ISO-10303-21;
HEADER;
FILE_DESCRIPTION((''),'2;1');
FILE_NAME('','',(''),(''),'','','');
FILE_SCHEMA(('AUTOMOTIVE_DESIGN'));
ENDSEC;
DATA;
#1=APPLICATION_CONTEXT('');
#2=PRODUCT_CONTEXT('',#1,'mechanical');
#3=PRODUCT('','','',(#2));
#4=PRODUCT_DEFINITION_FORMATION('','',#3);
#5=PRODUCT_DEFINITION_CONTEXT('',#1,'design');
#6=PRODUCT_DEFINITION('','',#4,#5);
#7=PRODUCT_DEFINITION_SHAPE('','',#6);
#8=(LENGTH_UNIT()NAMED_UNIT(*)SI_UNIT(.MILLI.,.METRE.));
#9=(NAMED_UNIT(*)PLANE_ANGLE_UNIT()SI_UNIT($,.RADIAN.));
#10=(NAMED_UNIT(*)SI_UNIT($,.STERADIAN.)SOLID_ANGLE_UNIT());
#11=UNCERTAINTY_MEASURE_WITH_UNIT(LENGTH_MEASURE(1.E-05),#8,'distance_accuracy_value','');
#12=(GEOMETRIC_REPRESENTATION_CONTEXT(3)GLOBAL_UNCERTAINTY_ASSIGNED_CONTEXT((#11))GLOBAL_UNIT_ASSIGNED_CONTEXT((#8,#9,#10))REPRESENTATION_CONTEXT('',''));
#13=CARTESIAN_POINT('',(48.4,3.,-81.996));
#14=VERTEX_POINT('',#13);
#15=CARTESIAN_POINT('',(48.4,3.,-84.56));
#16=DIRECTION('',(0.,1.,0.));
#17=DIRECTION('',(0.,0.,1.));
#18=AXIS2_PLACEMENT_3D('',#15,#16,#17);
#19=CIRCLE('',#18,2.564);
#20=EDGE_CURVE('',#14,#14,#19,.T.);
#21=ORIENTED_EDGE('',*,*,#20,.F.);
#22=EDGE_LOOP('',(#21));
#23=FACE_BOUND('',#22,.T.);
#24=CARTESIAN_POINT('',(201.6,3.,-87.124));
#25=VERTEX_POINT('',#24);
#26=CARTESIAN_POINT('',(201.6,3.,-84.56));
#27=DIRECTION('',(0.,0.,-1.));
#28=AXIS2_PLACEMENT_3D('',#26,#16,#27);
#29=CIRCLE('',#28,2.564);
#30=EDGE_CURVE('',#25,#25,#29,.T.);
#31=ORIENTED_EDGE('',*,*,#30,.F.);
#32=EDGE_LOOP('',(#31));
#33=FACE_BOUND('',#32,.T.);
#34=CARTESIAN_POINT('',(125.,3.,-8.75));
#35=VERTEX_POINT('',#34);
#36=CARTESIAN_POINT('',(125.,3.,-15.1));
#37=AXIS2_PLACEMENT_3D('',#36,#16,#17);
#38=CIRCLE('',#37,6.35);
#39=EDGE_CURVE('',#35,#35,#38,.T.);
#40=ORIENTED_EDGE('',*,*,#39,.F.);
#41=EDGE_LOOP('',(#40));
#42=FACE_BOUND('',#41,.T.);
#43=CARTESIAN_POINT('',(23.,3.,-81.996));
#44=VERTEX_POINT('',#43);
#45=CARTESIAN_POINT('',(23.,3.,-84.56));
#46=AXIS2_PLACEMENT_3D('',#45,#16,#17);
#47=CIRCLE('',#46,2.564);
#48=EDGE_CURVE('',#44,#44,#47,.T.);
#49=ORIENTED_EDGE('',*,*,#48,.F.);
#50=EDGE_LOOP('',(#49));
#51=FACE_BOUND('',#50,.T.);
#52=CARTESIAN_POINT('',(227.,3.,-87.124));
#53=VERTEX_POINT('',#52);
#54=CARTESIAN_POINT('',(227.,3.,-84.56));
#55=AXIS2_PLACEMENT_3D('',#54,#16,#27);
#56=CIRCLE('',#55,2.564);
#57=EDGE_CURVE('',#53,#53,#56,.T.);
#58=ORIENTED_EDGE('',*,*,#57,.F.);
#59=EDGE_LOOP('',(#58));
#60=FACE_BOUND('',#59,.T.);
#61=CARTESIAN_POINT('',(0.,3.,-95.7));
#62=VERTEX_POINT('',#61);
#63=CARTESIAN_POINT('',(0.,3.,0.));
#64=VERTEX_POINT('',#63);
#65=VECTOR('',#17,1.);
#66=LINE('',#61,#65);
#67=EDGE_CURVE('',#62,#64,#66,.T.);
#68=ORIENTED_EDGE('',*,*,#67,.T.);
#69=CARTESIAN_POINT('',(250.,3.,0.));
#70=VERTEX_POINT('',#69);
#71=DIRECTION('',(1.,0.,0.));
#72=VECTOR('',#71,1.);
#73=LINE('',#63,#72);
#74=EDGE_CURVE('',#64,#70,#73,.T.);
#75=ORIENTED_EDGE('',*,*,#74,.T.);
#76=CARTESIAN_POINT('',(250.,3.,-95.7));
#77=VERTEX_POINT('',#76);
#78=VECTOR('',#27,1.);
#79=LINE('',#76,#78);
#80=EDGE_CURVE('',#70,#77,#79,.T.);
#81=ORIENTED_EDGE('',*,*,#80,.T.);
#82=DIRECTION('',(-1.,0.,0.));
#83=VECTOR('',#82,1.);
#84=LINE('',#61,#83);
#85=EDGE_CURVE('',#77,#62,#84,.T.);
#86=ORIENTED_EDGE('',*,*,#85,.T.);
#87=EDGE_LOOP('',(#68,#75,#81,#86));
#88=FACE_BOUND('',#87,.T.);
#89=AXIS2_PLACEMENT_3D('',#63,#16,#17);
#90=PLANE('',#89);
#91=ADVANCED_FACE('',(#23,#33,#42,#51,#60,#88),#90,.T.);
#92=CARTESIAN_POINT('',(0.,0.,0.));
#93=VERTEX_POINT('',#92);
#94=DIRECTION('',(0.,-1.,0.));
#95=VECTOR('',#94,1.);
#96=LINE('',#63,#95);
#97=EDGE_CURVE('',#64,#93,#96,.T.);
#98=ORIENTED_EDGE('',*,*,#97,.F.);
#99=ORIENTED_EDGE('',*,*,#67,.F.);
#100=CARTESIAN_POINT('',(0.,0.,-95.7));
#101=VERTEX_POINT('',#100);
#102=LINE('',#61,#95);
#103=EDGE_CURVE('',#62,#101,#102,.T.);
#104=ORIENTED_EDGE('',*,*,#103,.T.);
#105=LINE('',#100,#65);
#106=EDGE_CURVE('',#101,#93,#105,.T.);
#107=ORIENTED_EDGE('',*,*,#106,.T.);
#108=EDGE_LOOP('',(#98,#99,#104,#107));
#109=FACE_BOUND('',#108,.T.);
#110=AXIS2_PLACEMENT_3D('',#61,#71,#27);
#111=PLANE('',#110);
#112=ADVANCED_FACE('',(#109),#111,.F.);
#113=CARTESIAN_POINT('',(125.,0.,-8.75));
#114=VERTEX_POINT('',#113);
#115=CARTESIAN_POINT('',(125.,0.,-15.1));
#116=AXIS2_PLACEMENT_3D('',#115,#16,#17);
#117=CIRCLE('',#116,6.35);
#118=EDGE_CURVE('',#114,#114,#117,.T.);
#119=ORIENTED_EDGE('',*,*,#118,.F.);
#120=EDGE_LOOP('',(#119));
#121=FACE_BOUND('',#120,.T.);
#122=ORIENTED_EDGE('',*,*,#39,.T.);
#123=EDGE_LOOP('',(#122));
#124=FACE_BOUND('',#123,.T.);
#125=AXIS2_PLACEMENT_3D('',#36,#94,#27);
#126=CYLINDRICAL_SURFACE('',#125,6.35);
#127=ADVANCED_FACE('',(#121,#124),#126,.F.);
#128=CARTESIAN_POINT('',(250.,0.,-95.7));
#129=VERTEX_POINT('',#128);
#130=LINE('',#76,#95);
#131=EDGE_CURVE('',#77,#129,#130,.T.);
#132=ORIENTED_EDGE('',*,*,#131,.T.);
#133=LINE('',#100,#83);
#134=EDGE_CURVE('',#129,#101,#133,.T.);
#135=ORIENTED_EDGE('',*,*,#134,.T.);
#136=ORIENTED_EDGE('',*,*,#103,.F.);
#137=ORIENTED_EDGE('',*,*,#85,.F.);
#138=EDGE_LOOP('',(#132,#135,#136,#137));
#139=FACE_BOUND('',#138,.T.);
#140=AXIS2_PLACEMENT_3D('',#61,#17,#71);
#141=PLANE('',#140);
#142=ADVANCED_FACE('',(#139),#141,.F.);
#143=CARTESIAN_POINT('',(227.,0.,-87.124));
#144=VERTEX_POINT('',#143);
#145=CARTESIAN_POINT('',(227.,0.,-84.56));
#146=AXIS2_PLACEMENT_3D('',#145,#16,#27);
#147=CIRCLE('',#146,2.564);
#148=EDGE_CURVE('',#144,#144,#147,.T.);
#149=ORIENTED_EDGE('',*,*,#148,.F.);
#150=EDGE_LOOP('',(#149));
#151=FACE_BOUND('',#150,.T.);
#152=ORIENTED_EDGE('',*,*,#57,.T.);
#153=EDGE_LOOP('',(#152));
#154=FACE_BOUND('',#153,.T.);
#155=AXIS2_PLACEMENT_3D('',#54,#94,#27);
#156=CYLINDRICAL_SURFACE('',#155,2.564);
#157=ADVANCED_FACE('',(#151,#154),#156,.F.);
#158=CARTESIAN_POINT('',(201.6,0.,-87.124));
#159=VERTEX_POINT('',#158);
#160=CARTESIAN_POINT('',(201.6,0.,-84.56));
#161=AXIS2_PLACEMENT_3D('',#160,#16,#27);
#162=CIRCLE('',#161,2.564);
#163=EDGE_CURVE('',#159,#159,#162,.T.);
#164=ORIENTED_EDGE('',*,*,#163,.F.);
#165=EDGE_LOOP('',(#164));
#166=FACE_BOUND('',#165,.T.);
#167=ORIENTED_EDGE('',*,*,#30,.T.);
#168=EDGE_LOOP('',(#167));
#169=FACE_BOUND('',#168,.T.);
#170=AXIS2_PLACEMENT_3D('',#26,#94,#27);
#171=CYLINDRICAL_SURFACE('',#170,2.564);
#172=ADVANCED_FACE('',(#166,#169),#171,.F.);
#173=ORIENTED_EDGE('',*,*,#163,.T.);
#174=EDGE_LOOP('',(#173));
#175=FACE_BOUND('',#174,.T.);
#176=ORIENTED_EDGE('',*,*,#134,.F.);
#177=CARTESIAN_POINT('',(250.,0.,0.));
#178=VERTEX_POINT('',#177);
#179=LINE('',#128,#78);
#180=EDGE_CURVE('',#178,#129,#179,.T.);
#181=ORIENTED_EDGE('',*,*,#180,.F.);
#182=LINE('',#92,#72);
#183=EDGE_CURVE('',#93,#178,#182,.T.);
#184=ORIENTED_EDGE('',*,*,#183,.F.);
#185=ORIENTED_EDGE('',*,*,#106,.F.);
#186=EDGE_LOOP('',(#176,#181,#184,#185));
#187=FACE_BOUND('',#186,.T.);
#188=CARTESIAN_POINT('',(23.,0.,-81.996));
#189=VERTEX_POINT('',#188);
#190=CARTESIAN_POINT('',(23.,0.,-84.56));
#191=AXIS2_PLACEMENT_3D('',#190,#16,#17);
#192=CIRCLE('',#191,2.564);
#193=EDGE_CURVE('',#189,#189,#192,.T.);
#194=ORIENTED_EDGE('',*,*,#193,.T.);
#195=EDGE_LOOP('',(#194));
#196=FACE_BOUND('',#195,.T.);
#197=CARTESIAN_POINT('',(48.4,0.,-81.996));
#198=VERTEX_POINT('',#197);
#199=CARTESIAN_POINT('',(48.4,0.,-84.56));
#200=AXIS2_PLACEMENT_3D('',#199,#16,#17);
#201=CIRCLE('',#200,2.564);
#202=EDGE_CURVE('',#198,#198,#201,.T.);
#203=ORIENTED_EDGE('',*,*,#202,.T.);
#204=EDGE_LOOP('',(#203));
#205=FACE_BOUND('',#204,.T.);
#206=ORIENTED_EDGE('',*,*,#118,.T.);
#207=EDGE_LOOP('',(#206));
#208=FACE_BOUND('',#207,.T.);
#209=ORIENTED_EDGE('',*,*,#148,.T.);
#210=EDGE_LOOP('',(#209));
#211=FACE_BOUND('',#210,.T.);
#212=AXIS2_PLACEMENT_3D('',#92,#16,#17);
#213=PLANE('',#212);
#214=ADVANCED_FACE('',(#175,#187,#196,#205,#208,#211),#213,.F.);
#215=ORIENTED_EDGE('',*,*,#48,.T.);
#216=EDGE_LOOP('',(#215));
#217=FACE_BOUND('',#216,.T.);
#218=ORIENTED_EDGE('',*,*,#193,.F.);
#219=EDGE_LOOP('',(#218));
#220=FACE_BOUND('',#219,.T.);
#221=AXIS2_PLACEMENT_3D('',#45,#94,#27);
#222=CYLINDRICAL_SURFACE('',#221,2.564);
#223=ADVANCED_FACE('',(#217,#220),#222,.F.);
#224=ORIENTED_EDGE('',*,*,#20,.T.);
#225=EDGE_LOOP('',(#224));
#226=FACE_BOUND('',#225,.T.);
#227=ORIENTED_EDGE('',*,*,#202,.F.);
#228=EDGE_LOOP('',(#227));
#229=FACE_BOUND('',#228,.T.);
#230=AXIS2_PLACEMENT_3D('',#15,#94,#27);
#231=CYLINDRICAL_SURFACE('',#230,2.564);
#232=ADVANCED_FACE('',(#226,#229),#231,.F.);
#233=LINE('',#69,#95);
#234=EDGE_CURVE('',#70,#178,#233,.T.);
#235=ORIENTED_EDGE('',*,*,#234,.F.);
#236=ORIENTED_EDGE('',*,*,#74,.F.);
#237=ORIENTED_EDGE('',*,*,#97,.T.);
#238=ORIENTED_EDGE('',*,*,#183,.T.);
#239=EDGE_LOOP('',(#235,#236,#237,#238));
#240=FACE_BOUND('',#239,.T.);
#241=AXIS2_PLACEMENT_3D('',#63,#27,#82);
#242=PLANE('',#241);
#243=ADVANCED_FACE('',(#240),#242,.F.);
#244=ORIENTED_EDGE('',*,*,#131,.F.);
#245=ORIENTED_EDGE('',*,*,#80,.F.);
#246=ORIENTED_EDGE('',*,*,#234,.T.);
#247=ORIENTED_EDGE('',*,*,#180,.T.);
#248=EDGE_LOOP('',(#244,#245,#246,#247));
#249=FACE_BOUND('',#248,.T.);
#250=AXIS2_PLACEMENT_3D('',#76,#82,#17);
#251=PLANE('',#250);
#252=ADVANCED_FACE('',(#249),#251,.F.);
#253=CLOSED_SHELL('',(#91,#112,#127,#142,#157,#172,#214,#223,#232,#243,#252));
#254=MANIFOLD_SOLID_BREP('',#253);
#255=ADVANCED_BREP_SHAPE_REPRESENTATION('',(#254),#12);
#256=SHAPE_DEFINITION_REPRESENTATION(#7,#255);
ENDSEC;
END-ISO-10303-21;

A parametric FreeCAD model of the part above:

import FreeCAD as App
import Part
import Sketcher
from FreeCAD import Vector
Q = App.Units.Quantity


def add_polygon(sketch, points):
    """Adds a closed chain of lines whose ends are joined by coincident constraints."""
    first, n = sketch.GeometryCount, len(points)
    for a, b in zip(points, points[1:] + points[:1]):
        sketch.addGeometry(Part.LineSegment(App.Vector(*a, 0), App.Vector(*b, 0)), False)
    for i in range(n):
        sketch.addConstraint(Sketcher.Constraint("Coincident", first + i, 2, first + (i + 1) % n, 1))

doc = App.newDocument("Part")
params = doc.addObject("Spreadsheet::Sheet", "Params")
for row, (alias, value) in enumerate([
    ("sketch1_diameter", "12.7 mm"),
    ("sketch1_width", "250 mm"),
    ("sketch1_height", "95.7 mm"),
    ("pad1_length", "3 mm"),
], start=1):
    params.set(f"A{row}", alias)
    params.set(f"B{row}", "=" + value)
    params.setAlias(f"B{row}", alias)

body = doc.addObject("PartDesign::Body", "Body")

# Sketch on XZ plane
sketch1 = body.newObject("Sketcher::SketchObject", "Sketch")
sketch1.AttachmentSupport = (doc.getObject("XZ_Plane"), [""])
sketch1.MapMode = "FlatFace"
add_polygon(sketch1, [(0, -95.7), (0, 0), (250, 0), (250, -95.7)])  # lines 0-3
sketch1.addGeometry(Part.Circle(Vector(125, -15.1, 0), Vector(0, 0, 1), 6.3), False)  # 4
sketch1.addGeometry(Part.Circle(Vector(23, -84.6, 0), Vector(0, 0, 1), 2.6), False)  # 5
sketch1.addGeometry(Part.Circle(Vector(48.4, -84.6, 0), Vector(0, 0, 1), 2.6), False)  # 6
sketch1.addGeometry(Part.Circle(Vector(201.6, -84.6, 0), Vector(0, 0, 1), 2.6), False)  # 7
sketch1.addGeometry(Part.Circle(Vector(227, -84.6, 0), Vector(0, 0, 1), 2.6), False)  # 8
sketch1.addConstraint([
    Sketcher.Constraint("Vertical", 0),
    Sketcher.Constraint("Horizontal", 1),
    Sketcher.Constraint("Vertical", 2),
    Sketcher.Constraint("Horizontal", 3),
    Sketcher.Constraint("Coincident", 0, 2, -1, 1),
    Sketcher.Constraint("Equal", 5, 6),
    Sketcher.Constraint("Equal", 6, 7),
    Sketcher.Constraint("Equal", 7, 8),
    Sketcher.Constraint("Horizontal", 5, 3, 6, 3),
    Sketcher.Constraint("Horizontal", 6, 3, 7, 3),
    Sketcher.Constraint("Horizontal", 7, 3, 8, 3),
    Sketcher.Constraint("Diameter", 4, Q("12.7 mm")),
    Sketcher.Constraint("DistanceX", 1, 1, 1, 2, Q("250 mm")),
    Sketcher.Constraint("Diameter", 5, Q("5.128 mm")),
    Sketcher.Constraint("DistanceY", 0, 1, 0, 2, Q("95.7 mm")),
    Sketcher.Constraint("DistanceX", -1, 1, 4, 3, Q("125 mm")),
    Sketcher.Constraint("DistanceX", -1, 1, 5, 3, Q("23 mm")),
    Sketcher.Constraint("DistanceX", -1, 1, 8, 3, Q("227 mm")),
    Sketcher.Constraint("DistanceY", 4, 3, -1, 1, Q("15.1 mm")),
    Sketcher.Constraint("DistanceX", -1, 1, 6, 3, Q("48.4 mm")),
    Sketcher.Constraint("DistanceX", -1, 1, 7, 3, Q("201.6 mm")),
    Sketcher.Constraint("DistanceY", 5, 3, -1, 1, Q("84.56 mm")),
])
sketch1.setExpression("Constraints[15]", "Params.sketch1_diameter")
sketch1.setExpression("Constraints[16]", "Params.sketch1_width")
sketch1.setExpression("Constraints[18]", "Params.sketch1_height")
pad1 = body.newObject("PartDesign::Pad", "Pad")
pad1.Profile = sketch1
pad1.setExpression("Length", "Params.pad1_length")
pad1.Reversed = True

doc.recompute()
